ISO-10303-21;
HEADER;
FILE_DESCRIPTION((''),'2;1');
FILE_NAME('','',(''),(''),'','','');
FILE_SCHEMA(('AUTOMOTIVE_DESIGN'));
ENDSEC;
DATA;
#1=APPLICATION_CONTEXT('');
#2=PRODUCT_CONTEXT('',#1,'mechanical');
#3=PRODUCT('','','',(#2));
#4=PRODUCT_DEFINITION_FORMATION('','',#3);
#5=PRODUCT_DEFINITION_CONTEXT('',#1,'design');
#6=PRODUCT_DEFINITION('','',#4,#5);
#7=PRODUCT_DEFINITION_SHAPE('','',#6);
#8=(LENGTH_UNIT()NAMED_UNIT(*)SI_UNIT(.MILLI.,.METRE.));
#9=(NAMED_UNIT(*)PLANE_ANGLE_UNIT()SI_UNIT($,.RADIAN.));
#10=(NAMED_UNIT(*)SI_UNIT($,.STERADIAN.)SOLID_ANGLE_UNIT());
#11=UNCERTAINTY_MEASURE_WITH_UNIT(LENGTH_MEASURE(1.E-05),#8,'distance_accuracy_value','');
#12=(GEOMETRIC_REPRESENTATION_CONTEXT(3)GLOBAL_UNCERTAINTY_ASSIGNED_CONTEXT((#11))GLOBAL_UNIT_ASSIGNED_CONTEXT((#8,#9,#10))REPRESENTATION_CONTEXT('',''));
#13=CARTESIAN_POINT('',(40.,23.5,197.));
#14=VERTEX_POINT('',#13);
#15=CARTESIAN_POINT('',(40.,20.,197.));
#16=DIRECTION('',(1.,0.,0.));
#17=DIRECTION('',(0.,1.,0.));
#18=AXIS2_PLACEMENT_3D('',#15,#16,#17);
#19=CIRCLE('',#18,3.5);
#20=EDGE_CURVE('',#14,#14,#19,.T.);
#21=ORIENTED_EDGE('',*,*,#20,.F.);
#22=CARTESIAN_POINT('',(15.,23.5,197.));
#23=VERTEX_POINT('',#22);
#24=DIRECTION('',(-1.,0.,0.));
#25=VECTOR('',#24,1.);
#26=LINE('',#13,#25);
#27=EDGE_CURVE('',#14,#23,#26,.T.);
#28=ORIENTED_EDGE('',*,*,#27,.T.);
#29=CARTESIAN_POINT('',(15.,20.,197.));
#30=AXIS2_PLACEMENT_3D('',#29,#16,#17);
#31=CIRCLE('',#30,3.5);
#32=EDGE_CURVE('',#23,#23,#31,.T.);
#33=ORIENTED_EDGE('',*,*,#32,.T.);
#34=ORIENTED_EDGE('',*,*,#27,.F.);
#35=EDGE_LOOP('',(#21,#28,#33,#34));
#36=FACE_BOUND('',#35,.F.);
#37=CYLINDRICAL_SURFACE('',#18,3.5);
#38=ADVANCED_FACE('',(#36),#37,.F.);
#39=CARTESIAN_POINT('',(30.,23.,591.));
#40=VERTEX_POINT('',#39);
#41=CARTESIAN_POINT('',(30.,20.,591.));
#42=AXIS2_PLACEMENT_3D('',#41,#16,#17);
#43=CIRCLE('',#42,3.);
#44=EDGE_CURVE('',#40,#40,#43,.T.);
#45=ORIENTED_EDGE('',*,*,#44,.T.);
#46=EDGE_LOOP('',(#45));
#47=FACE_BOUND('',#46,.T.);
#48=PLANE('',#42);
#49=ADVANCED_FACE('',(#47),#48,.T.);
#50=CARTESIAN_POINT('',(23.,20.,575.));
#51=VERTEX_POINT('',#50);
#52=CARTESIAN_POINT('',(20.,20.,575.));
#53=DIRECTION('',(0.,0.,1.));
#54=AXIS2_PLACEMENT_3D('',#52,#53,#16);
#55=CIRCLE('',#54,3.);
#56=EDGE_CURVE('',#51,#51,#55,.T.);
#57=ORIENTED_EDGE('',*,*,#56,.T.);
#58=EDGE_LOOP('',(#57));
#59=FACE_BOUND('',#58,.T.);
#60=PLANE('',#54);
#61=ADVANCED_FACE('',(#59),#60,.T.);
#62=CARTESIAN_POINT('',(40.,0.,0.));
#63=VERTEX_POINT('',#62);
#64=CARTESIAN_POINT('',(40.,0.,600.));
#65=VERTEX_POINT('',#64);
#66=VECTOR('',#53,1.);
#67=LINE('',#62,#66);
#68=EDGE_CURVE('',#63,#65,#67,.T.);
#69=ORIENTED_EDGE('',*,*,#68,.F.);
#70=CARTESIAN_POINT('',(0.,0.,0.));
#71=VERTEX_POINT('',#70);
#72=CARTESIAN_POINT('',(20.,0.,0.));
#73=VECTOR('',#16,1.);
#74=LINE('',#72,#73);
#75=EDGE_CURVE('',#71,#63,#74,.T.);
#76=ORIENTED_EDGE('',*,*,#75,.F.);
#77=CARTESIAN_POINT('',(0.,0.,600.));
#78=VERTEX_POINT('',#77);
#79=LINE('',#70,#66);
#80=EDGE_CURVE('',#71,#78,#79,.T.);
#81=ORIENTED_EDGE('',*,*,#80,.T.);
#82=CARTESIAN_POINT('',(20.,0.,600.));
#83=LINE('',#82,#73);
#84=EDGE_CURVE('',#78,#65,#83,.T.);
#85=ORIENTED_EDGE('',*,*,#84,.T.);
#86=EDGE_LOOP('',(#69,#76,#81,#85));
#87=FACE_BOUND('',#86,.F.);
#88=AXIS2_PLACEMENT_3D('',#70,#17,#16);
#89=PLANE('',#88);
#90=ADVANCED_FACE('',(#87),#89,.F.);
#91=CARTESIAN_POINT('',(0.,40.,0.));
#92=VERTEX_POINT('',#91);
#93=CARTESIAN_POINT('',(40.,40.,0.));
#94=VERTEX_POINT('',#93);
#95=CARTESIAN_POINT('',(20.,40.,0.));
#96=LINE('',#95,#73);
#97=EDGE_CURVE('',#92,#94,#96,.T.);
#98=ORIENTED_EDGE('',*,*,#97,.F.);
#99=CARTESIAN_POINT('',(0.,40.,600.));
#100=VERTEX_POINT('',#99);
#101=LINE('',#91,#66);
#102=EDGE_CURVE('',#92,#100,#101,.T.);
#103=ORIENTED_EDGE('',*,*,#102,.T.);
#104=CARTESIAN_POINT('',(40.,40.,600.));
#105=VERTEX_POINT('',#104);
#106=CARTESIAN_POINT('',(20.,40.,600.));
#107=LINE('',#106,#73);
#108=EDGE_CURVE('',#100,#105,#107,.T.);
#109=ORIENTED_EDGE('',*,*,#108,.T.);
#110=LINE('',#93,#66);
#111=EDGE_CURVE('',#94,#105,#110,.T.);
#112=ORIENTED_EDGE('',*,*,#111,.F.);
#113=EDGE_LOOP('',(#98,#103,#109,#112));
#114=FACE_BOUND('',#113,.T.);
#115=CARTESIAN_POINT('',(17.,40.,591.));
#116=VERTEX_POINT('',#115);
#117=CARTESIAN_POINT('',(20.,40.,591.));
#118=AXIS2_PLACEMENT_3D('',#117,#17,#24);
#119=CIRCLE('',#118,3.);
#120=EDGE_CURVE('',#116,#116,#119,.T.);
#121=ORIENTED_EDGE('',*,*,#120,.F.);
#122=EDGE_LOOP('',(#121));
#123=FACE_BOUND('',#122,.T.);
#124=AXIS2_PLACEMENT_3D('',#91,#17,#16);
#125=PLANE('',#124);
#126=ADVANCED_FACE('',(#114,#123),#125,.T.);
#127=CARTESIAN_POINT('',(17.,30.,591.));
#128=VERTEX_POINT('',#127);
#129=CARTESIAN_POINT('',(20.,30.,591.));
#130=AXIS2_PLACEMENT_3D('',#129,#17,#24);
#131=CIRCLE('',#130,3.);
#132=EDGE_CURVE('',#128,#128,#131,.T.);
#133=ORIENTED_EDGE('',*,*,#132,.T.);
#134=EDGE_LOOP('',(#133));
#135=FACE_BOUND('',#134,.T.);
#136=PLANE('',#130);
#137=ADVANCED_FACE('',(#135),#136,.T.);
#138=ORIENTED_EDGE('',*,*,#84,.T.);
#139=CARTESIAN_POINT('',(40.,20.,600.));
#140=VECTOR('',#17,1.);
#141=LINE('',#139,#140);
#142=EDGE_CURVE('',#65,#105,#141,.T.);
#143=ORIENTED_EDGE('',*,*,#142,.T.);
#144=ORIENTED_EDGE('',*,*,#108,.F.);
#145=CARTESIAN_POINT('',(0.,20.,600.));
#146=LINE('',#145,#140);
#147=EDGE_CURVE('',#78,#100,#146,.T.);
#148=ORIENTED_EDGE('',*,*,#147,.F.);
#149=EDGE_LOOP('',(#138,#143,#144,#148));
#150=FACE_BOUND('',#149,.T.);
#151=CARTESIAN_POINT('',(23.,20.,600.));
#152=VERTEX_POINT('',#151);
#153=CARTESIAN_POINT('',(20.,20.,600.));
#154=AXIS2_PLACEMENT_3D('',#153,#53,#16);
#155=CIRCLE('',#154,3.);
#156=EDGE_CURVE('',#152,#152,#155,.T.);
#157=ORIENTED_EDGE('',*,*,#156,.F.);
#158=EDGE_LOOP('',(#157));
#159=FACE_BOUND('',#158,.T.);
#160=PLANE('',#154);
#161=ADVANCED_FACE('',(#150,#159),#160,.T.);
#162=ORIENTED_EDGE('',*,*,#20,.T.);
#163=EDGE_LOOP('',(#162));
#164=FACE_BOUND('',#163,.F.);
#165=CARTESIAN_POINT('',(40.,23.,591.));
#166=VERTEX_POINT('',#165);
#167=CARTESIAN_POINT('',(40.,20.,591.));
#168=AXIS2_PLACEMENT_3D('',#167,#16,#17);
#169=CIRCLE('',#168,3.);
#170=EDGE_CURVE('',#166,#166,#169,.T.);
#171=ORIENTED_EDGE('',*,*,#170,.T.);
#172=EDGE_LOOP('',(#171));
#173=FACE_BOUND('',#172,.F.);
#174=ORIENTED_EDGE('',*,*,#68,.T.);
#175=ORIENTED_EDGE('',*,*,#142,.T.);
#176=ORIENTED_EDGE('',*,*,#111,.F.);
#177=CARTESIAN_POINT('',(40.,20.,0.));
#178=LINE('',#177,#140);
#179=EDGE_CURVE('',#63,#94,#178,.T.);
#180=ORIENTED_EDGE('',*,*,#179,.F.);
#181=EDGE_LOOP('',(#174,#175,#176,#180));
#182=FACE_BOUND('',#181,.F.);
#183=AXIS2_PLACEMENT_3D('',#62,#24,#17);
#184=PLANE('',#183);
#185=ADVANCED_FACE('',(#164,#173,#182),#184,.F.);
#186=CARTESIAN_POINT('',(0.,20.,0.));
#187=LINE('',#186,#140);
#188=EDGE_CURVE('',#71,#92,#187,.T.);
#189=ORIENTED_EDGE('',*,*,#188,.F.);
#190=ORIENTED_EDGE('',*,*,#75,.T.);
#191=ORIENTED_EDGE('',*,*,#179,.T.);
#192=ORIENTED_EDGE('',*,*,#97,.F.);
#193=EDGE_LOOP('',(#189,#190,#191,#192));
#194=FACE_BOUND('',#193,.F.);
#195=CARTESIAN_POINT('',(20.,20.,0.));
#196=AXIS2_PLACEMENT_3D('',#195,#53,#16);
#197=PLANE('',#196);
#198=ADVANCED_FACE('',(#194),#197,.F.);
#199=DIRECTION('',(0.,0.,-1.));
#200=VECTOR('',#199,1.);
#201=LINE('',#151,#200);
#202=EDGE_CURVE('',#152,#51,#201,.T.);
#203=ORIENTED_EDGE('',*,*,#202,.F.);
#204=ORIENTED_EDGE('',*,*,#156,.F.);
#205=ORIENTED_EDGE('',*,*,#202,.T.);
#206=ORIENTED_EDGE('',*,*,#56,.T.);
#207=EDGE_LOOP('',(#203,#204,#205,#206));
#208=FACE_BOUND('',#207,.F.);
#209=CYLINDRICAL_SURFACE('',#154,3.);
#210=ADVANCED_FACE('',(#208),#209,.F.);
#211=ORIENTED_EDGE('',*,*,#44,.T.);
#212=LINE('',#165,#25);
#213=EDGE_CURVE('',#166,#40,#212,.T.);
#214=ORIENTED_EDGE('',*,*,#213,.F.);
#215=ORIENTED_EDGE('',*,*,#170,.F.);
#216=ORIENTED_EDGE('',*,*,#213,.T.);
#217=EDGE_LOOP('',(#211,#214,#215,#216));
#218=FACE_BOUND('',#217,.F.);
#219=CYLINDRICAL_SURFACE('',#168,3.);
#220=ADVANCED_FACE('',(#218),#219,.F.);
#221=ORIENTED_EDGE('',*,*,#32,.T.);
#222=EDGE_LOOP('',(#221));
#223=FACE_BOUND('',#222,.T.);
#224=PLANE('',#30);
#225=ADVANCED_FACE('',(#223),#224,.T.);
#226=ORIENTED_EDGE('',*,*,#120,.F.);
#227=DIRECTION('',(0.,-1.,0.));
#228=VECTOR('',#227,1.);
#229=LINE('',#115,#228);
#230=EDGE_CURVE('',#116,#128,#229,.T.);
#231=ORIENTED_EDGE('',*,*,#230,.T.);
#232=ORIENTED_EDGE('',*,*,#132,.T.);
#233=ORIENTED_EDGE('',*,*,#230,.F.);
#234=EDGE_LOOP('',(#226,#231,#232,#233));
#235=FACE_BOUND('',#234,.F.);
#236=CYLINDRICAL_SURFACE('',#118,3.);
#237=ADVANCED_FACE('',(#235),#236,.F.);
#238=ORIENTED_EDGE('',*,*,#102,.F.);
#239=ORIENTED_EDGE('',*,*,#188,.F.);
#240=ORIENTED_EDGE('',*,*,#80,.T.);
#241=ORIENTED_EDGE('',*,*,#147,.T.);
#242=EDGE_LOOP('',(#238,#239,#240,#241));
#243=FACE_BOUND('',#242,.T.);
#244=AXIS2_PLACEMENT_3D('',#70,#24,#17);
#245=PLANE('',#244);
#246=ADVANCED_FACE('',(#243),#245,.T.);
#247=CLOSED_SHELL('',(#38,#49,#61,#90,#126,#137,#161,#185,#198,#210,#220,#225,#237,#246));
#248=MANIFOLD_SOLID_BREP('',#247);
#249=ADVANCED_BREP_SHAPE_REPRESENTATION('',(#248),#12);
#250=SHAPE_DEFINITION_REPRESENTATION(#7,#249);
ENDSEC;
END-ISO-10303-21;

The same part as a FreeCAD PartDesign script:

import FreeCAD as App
import Part
import Sketcher
from FreeCAD import Vector

doc = App.newDocument("Part")
body = doc.addObject("PartDesign::Body", "Body")

sketch1 = doc.addObject("Sketcher::SketchObject", "Sketch")
body.addObject(sketch1)
sketch1.AttachmentSupport = (doc.XY_Plane, [""])
sketch1.MapMode = "FlatFace"
sketch1.addGeometry(Part.LineSegment(Vector(0, 40, 0), Vector(0, 0, 0)), False)
sketch1.addGeometry(Part.LineSegment(Vector(0, 0, 0), Vector(40, 0, 0)), False)
sketch1.addGeometry(Part.LineSegment(Vector(40, 0, 0), Vector(40, 40, 0)), False)
sketch1.addGeometry(Part.LineSegment(Vector(40, 40, 0), Vector(0, 40, 0)), False)
sketch1.addConstraint(Sketcher.Constraint("Coincident", 0, 2, 1, 1))
sketch1.addConstraint(Sketcher.Constraint("Coincident", 1, 2, 2, 1))
sketch1.addConstraint(Sketcher.Constraint("Coincident", 2, 2, 3, 1))
sketch1.addConstraint(Sketcher.Constraint("Coincident", 3, 2, 0, 1))
sketch1.addConstraint(Sketcher.Constraint("Vertical", 0))
sketch1.addConstraint(Sketcher.Constraint("Horizontal", 1))
sketch1.addConstraint(Sketcher.Constraint("Vertical", 2))
sketch1.addConstraint(Sketcher.Constraint("Horizontal", 3))
sketch1.addConstraint(Sketcher.Constraint("Coincident", 0, 2, -1, 1))
sketch1.addConstraint(Sketcher.Constraint("Equal", 3, 0))
sketch1.addConstraint(Sketcher.Constraint("DistanceX", 1, 1, 1, 2, 40.0))
pad1 = doc.addObject("PartDesign::Pad", "Pad")
body.addObject(pad1)
pad1.Profile = sketch1
pad1.Length = 600

sketch2 = doc.addObject("Sketcher::SketchObject", "Sketch001")
body.addObject(sketch2)
sketch2.AttachmentSupport = (doc.XY_Plane, [""])
sketch2.MapMode = "FlatFace"
sketch2.AttachmentOffset = App.Placement(Vector(0, 0, 600), App.Rotation())
sketch2.addGeometry(Part.Circle(Vector(20, 20, 0), Vector(0, 0, 1), 3), False)
sketch2.addConstraint(Sketcher.Constraint("Diameter", 0, 6.0))
sketch2.addConstraint(Sketcher.Constraint("DistanceX", -1, 1, 0, 3, 20.0))
sketch2.addConstraint(Sketcher.Constraint("DistanceY", -1, 1, 0, 3, 20.0))
pocket1 = doc.addObject("PartDesign::Pocket", "Pocket")
body.addObject(pocket1)
pocket1.Profile = sketch2
pocket1.Length = 25

sketch3 = doc.addObject("Sketcher::SketchObject", "Sketch002")
body.addObject(sketch3)
sketch3.AttachmentSupport = (doc.YZ_Plane, [""])
sketch3.MapMode = "FlatFace"
sketch3.AttachmentOffset = App.Placement(Vector(0, 0, 40), App.Rotation())
sketch3.addGeometry(Part.Circle(Vector(20, 591, 0), Vector(0, 0, 1), 3), False)
sketch3.addConstraint(Sketcher.Constraint("Diameter", 0, 6.0))
sketch3.addConstraint(Sketcher.Constraint("DistanceX", -1, 1, 0, 3, 20.0))
sketch3.addConstraint(Sketcher.Constraint("DistanceY", -1, 1, 0, 3, 591.0))
pocket2 = doc.addObject("PartDesign::Pocket", "Pocket001")
body.addObject(pocket2)
pocket2.Profile = sketch3
pocket2.Length = 10

sketch4 = doc.addObject("Sketcher::SketchObject", "Sketch003")
body.addObject(sketch4)
sketch4.AttachmentSupport = (doc.XZ_Plane, [""])
sketch4.MapMode = "FlatFace"
sketch4.AttachmentOffset = App.Placement(Vector(0, 0, -40), App.Rotation())
sketch4.addGeometry(Part.Circle(Vector(20, 591, 0), Vector(0, 0, 1), 3), False)
sketch4.addConstraint(Sketcher.Constraint("Diameter", 0, 6.0))
sketch4.addConstraint(Sketcher.Constraint("DistanceX", -1, 1, 0, 3, 20.0))
sketch4.addConstraint(Sketcher.Constraint("DistanceY", -1, 1, 0, 3, 591.0))
pocket3 = doc.addObject("PartDesign::Pocket", "Pocket002")
body.addObject(pocket3)
pocket3.Profile = sketch4
pocket3.Length = 10
pocket3.Reversed = True

sketch5 = doc.addObject("Sketcher::SketchObject", "Sketch004")
body.addObject(sketch5)
sketch5.AttachmentSupport = (doc.YZ_Plane, [""])
sketch5.MapMode = "FlatFace"
sketch5.AttachmentOffset = App.Placement(Vector(0, 0, 40), App.Rotation())
sketch5.addGeometry(Part.Circle(Vector(20, 197, 0), Vector(0, 0, 1), 3.5), False)
sketch5.addConstraint(Sketcher.Constraint("Diameter", 0, 7.0))
sketch5.addConstraint(Sketcher.Constraint("DistanceX", -1, 1, 0, 3, 20.0))
sketch5.addConstraint(Sketcher.Constraint("DistanceY", -1, 1, 0, 3, 197.0))
pocket4 = doc.addObject("PartDesign::Pocket", "Pocket003")
body.addObject(pocket4)
pocket4.Profile = sketch5
pocket4.Length = 25

doc.recompute()
